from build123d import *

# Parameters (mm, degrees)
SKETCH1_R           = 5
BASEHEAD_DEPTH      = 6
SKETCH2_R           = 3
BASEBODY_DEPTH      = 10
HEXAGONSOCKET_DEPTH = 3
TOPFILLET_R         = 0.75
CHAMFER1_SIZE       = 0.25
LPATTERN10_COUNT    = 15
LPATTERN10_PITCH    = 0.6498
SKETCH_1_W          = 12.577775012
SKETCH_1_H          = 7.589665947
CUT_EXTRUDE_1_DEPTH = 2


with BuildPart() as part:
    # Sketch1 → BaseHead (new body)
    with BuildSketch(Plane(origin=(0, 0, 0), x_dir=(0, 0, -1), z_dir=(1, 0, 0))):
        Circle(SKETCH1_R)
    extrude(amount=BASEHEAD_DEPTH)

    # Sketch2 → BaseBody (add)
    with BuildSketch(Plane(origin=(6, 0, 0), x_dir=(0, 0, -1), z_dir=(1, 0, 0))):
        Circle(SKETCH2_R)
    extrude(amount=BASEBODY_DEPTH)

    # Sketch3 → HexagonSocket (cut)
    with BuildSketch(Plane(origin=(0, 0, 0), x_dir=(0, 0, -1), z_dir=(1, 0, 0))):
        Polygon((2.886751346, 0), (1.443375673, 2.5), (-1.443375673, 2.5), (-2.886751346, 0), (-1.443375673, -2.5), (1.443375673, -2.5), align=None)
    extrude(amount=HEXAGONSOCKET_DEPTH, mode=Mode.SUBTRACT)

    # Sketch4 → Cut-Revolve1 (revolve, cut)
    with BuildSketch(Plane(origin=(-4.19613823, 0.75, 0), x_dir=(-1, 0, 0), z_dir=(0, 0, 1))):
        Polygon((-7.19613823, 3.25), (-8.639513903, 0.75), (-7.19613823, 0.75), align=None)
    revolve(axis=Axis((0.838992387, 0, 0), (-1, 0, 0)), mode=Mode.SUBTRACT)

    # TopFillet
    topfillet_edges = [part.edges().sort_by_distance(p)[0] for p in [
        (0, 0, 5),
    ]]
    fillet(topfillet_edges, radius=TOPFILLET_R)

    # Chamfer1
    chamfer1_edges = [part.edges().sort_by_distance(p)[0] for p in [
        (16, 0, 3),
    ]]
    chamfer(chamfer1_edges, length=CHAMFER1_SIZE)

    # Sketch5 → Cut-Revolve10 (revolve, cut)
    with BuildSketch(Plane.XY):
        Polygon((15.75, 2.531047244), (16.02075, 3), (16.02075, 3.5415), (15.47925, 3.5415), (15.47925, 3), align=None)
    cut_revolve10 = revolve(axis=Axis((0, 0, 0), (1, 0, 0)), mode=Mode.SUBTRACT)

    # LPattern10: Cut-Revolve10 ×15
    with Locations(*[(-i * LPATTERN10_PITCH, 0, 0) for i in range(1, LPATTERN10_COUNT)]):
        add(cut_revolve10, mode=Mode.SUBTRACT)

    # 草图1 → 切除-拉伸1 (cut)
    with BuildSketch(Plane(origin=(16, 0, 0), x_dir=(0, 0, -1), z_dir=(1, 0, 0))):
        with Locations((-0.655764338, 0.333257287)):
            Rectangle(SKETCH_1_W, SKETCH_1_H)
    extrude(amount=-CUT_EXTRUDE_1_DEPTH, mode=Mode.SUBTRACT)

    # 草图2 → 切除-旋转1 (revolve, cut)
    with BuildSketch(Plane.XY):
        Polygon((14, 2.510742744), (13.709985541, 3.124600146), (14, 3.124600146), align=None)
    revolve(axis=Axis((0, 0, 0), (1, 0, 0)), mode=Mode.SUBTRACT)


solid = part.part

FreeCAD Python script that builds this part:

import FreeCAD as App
import Part
import Sketcher

V = App.Vector
Q = App.Units.Quantity


def edges_at(feature, points):
    """Names of the edges that pass closest to the given points."""
    edges = feature.Shape.Edges
    near = lambda p: min(range(len(edges)), key=lambda i: edges[i].distToShape(Part.Vertex(*p))[0])
    return sorted({f"Edge{near(p) + 1}" for p in points})


def add_polygon(sketch, points):
    """Adds a closed chain of lines whose ends are joined by coincident constraints."""
    first, n = sketch.GeometryCount, len(points)
    for a, b in zip(points, points[1:] + points[:1]):
        sketch.addGeometry(Part.LineSegment(App.Vector(*a, 0), App.Vector(*b, 0)), False)
    for i in range(n):
        sketch.addConstraint(Sketcher.Constraint("Coincident", first + i, 2, first + (i + 1) % n, 1))

doc = App.newDocument("Part")
body = doc.addObject("PartDesign::Body", "Body")

sketch1 = body.newObject("Sketcher::SketchObject", "Sketch")
sketch1.AttachmentSupport = (doc.getObject("YZ_Plane"), [""])
sketch1.MapMode = "FlatFace"
sketch1.addGeometry(Part.Circle(V(0, 0, 0), V(0, 0, 1), 5), False)
sketch1.addConstraint([
    Sketcher.Constraint("Coincident", 0, 3, -1, 1),
    Sketcher.Constraint("Diameter", 0, 10.0),
])
pad1 = body.newObject("PartDesign::Pad", "Pad")
pad1.Profile = sketch1
pad1.Length = 6

sketch2 = body.newObject("Sketcher::SketchObject", "Sketch001")
sketch2.AttachmentSupport = (doc.getObject("YZ_Plane"), [""])
sketch2.MapMode = "FlatFace"
sketch2.AttachmentOffset = App.Placement(V(0, 0, 6), App.Rotation())
sketch2.addGeometry(Part.Circle(V(0, 0, 0), V(0, 0, 1), 3), False)
sketch2.addConstraint([
    Sketcher.Constraint("Coincident", 0, 3, -1, 1),
    Sketcher.Constraint("Diameter", 0, 6.0),
])
pad2 = body.newObject("PartDesign::Pad", "Pad001")
pad2.Profile = sketch2
pad2.Length = 10

sketch3 = body.newObject("Sketcher::SketchObject", "Sketch002")
sketch3.AttachmentSupport = (doc.getObject("YZ_Plane"), [""])
sketch3.MapMode = "FlatFace"
add_polygon(sketch3, [(0, -2.9), (2.5, -1.4), (2.5, 1.4), (0, 2.9), (-2.5, 1.4), (-2.5, -1.4)])
sketch3.addConstraint([
    Sketcher.Constraint("Vertical", 1),
    Sketcher.Constraint("Vertical", 4),
    Sketcher.Constraint("Symmetric", 0, 2, 3, 2, -1, 1),
    Sketcher.Constraint("Symmetric", 2, 2, 5, 2, -1, 1),
    Sketcher.Constraint("PointOnObject", 2, 2, -2),
    Sketcher.Constraint("Parallel", 2, 5),
    Sketcher.Constraint("Horizontal", 1, 2, 3, 2),
    Sketcher.Constraint("Angle", 0, Q("30 deg")),
    Sketcher.Constraint("DistanceX", 3, 2, 1, 2, 5.0),
    Sketcher.Constraint("DistanceY", 1, 1, 1, 2, 2.886751),
])
pocket1 = body.newObject("PartDesign::Pocket", "Pocket")
pocket1.Profile = sketch3
pocket1.Length = 3
pocket1.Reversed = True

sketch4 = body.newObject("Sketcher::SketchObject", "Sketch003")
sketch4.AttachmentSupport = (doc.getObject("XY_Plane"), [""])
sketch4.MapMode = "FlatFace"
add_polygon(sketch4, [(3, -2.5), (4.4, 0), (3, 0)])
sketch4.addConstraint([
    Sketcher.Constraint("Horizontal", 1),
    Sketcher.Constraint("Vertical", 2),
    Sketcher.Constraint("PointOnObject", 0, 2, -1),
    Sketcher.Constraint("Angle", 0, Q("60 deg")),
    Sketcher.Constraint("DistanceY", 2, 2, 2, 1, 2.5),
    Sketcher.Constraint("DistanceX", -1, 1, 1, 2, 3.0),
])
groove = body.newObject("PartDesign::Groove", "Groove")
groove.Profile = sketch4
groove.ReferenceAxis = (sketch4, ["H_Axis"])
groove.Angle = 360
doc.recompute()

fillet = body.newObject("PartDesign::Fillet", "Fillet")
fillet.Base = (groove, edges_at(groove, [(0, 0, 5)]))
fillet.Radius = 0.75
doc.recompute()

chamfer = body.newObject("PartDesign::Chamfer", "Chamfer")
chamfer.Base = (fillet, edges_at(fillet, [(16, 0, 3)]))
chamfer.Size = 0.25

sketch5 = body.newObject("Sketcher::SketchObject", "Sketch004")
sketch5.AttachmentSupport = (doc.getObject("XY_Plane"), [""])
sketch5.MapMode = "FlatFace"
add_polygon(sketch5, [(15.8, 2.5), (16, 3), (16, 3.5), (15.5, 3.5), (15.5, 3)])
sketch5.addConstraint([
    Sketcher.Constraint("Vertical", 1),
    Sketcher.Constraint("Horizontal", 2),
    Sketcher.Constraint("Vertical", 3),
    Sketcher.Constraint("Horizontal", 0, 2, 3, 2),
    Sketcher.Constraint("Equal", 2, 1),
    Sketcher.Constraint("Equal", 0, 4),
    Sketcher.Constraint("Angle", 0, Q("60 deg")),
    Sketcher.Constraint("DistanceY", -1, 1, 0, 2, 3.0),
    Sketcher.Constraint("DistanceX", -1, 1, 4, 2, 15.75),
    Sketcher.Constraint("DistanceX", 2, 2, 2, 1, 0.5415),
])
groove2 = body.newObject("PartDesign::Groove", "Groove001")
groove2.Profile = sketch5
groove2.ReferenceAxis = (sketch5, ["H_Axis"])
groove2.Angle = 360
doc.recompute()

linearpattern = body.newObject("PartDesign::LinearPattern", "LinearPattern")
linearpattern.Originals = [groove2]
linearpattern.Direction = (doc.getObject("X_Axis"), [""])
linearpattern.Mode = "offset"
linearpattern.Offset = 0.6498
linearpattern.Occurrences = 15
linearpattern.Reversed = True
body.Tip = linearpattern

sketch6 = body.newObject("Sketcher::SketchObject", "Sketch005")
sketch6.AttachmentSupport = (doc.getObject("YZ_Plane"), [""])
sketch6.MapMode = "FlatFace"
sketch6.AttachmentOffset = App.Placement(V(0, 0, 16), App.Rotation())
add_polygon(sketch6, [(4, 7), (-3, 7), (-3, -6), (4, -6)])
sketch6.addConstraint([
    Sketcher.Constraint("Horizontal", 0),
    Sketcher.Constraint("Vertical", 1),
    Sketcher.Constraint("Horizontal", 2),
    Sketcher.Constraint("Vertical", 3),
    Sketcher.Constraint("DistanceX", 0, 2, 0, 1, 7.589666),
    Sketcher.Constraint("DistanceY", 1, 2, 1, 1, 12.577775),
    Sketcher.Constraint("DistanceY", -1, 1, 0, 2, 6.944652),
    Sketcher.Constraint("DistanceX", -1, 1, 2, 2, 4.12809),
])
pocket2 = body.newObject("PartDesign::Pocket", "Pocket001")
pocket2.Profile = sketch6
pocket2.Length = 2

sketch7 = body.newObject("Sketcher::SketchObject", "Sketch006")
sketch7.AttachmentSupport = (doc.getObject("XY_Plane"), [""])
sketch7.MapMode = "FlatFace"
add_polygon(sketch7, [(13.71, 3.12), (14, 2.51), (14, 3.12)])
sketch7.addConstraint([
    Sketcher.Constraint("Vertical", 1),
    Sketcher.Constraint("Horizontal", 2),
    Sketcher.Constraint("DistanceX", -1, 1, 0, 2, 14.0),
    Sketcher.Constraint("DistanceY", -1, 1, 1, 2, 3.1246),
    Sketcher.Constraint("DistanceX", 2, 2, 2, 1, 0.290014),
    Sketcher.Constraint("DistanceY", 1, 1, 1, 2, 0.613857),
])
groove3 = body.newObject("PartDesign::Groove", "Groove002")
groove3.Profile = sketch7
groove3.ReferenceAxis = (sketch7, ["H_Axis"])
groove3.Angle = 360

doc.recompute()
